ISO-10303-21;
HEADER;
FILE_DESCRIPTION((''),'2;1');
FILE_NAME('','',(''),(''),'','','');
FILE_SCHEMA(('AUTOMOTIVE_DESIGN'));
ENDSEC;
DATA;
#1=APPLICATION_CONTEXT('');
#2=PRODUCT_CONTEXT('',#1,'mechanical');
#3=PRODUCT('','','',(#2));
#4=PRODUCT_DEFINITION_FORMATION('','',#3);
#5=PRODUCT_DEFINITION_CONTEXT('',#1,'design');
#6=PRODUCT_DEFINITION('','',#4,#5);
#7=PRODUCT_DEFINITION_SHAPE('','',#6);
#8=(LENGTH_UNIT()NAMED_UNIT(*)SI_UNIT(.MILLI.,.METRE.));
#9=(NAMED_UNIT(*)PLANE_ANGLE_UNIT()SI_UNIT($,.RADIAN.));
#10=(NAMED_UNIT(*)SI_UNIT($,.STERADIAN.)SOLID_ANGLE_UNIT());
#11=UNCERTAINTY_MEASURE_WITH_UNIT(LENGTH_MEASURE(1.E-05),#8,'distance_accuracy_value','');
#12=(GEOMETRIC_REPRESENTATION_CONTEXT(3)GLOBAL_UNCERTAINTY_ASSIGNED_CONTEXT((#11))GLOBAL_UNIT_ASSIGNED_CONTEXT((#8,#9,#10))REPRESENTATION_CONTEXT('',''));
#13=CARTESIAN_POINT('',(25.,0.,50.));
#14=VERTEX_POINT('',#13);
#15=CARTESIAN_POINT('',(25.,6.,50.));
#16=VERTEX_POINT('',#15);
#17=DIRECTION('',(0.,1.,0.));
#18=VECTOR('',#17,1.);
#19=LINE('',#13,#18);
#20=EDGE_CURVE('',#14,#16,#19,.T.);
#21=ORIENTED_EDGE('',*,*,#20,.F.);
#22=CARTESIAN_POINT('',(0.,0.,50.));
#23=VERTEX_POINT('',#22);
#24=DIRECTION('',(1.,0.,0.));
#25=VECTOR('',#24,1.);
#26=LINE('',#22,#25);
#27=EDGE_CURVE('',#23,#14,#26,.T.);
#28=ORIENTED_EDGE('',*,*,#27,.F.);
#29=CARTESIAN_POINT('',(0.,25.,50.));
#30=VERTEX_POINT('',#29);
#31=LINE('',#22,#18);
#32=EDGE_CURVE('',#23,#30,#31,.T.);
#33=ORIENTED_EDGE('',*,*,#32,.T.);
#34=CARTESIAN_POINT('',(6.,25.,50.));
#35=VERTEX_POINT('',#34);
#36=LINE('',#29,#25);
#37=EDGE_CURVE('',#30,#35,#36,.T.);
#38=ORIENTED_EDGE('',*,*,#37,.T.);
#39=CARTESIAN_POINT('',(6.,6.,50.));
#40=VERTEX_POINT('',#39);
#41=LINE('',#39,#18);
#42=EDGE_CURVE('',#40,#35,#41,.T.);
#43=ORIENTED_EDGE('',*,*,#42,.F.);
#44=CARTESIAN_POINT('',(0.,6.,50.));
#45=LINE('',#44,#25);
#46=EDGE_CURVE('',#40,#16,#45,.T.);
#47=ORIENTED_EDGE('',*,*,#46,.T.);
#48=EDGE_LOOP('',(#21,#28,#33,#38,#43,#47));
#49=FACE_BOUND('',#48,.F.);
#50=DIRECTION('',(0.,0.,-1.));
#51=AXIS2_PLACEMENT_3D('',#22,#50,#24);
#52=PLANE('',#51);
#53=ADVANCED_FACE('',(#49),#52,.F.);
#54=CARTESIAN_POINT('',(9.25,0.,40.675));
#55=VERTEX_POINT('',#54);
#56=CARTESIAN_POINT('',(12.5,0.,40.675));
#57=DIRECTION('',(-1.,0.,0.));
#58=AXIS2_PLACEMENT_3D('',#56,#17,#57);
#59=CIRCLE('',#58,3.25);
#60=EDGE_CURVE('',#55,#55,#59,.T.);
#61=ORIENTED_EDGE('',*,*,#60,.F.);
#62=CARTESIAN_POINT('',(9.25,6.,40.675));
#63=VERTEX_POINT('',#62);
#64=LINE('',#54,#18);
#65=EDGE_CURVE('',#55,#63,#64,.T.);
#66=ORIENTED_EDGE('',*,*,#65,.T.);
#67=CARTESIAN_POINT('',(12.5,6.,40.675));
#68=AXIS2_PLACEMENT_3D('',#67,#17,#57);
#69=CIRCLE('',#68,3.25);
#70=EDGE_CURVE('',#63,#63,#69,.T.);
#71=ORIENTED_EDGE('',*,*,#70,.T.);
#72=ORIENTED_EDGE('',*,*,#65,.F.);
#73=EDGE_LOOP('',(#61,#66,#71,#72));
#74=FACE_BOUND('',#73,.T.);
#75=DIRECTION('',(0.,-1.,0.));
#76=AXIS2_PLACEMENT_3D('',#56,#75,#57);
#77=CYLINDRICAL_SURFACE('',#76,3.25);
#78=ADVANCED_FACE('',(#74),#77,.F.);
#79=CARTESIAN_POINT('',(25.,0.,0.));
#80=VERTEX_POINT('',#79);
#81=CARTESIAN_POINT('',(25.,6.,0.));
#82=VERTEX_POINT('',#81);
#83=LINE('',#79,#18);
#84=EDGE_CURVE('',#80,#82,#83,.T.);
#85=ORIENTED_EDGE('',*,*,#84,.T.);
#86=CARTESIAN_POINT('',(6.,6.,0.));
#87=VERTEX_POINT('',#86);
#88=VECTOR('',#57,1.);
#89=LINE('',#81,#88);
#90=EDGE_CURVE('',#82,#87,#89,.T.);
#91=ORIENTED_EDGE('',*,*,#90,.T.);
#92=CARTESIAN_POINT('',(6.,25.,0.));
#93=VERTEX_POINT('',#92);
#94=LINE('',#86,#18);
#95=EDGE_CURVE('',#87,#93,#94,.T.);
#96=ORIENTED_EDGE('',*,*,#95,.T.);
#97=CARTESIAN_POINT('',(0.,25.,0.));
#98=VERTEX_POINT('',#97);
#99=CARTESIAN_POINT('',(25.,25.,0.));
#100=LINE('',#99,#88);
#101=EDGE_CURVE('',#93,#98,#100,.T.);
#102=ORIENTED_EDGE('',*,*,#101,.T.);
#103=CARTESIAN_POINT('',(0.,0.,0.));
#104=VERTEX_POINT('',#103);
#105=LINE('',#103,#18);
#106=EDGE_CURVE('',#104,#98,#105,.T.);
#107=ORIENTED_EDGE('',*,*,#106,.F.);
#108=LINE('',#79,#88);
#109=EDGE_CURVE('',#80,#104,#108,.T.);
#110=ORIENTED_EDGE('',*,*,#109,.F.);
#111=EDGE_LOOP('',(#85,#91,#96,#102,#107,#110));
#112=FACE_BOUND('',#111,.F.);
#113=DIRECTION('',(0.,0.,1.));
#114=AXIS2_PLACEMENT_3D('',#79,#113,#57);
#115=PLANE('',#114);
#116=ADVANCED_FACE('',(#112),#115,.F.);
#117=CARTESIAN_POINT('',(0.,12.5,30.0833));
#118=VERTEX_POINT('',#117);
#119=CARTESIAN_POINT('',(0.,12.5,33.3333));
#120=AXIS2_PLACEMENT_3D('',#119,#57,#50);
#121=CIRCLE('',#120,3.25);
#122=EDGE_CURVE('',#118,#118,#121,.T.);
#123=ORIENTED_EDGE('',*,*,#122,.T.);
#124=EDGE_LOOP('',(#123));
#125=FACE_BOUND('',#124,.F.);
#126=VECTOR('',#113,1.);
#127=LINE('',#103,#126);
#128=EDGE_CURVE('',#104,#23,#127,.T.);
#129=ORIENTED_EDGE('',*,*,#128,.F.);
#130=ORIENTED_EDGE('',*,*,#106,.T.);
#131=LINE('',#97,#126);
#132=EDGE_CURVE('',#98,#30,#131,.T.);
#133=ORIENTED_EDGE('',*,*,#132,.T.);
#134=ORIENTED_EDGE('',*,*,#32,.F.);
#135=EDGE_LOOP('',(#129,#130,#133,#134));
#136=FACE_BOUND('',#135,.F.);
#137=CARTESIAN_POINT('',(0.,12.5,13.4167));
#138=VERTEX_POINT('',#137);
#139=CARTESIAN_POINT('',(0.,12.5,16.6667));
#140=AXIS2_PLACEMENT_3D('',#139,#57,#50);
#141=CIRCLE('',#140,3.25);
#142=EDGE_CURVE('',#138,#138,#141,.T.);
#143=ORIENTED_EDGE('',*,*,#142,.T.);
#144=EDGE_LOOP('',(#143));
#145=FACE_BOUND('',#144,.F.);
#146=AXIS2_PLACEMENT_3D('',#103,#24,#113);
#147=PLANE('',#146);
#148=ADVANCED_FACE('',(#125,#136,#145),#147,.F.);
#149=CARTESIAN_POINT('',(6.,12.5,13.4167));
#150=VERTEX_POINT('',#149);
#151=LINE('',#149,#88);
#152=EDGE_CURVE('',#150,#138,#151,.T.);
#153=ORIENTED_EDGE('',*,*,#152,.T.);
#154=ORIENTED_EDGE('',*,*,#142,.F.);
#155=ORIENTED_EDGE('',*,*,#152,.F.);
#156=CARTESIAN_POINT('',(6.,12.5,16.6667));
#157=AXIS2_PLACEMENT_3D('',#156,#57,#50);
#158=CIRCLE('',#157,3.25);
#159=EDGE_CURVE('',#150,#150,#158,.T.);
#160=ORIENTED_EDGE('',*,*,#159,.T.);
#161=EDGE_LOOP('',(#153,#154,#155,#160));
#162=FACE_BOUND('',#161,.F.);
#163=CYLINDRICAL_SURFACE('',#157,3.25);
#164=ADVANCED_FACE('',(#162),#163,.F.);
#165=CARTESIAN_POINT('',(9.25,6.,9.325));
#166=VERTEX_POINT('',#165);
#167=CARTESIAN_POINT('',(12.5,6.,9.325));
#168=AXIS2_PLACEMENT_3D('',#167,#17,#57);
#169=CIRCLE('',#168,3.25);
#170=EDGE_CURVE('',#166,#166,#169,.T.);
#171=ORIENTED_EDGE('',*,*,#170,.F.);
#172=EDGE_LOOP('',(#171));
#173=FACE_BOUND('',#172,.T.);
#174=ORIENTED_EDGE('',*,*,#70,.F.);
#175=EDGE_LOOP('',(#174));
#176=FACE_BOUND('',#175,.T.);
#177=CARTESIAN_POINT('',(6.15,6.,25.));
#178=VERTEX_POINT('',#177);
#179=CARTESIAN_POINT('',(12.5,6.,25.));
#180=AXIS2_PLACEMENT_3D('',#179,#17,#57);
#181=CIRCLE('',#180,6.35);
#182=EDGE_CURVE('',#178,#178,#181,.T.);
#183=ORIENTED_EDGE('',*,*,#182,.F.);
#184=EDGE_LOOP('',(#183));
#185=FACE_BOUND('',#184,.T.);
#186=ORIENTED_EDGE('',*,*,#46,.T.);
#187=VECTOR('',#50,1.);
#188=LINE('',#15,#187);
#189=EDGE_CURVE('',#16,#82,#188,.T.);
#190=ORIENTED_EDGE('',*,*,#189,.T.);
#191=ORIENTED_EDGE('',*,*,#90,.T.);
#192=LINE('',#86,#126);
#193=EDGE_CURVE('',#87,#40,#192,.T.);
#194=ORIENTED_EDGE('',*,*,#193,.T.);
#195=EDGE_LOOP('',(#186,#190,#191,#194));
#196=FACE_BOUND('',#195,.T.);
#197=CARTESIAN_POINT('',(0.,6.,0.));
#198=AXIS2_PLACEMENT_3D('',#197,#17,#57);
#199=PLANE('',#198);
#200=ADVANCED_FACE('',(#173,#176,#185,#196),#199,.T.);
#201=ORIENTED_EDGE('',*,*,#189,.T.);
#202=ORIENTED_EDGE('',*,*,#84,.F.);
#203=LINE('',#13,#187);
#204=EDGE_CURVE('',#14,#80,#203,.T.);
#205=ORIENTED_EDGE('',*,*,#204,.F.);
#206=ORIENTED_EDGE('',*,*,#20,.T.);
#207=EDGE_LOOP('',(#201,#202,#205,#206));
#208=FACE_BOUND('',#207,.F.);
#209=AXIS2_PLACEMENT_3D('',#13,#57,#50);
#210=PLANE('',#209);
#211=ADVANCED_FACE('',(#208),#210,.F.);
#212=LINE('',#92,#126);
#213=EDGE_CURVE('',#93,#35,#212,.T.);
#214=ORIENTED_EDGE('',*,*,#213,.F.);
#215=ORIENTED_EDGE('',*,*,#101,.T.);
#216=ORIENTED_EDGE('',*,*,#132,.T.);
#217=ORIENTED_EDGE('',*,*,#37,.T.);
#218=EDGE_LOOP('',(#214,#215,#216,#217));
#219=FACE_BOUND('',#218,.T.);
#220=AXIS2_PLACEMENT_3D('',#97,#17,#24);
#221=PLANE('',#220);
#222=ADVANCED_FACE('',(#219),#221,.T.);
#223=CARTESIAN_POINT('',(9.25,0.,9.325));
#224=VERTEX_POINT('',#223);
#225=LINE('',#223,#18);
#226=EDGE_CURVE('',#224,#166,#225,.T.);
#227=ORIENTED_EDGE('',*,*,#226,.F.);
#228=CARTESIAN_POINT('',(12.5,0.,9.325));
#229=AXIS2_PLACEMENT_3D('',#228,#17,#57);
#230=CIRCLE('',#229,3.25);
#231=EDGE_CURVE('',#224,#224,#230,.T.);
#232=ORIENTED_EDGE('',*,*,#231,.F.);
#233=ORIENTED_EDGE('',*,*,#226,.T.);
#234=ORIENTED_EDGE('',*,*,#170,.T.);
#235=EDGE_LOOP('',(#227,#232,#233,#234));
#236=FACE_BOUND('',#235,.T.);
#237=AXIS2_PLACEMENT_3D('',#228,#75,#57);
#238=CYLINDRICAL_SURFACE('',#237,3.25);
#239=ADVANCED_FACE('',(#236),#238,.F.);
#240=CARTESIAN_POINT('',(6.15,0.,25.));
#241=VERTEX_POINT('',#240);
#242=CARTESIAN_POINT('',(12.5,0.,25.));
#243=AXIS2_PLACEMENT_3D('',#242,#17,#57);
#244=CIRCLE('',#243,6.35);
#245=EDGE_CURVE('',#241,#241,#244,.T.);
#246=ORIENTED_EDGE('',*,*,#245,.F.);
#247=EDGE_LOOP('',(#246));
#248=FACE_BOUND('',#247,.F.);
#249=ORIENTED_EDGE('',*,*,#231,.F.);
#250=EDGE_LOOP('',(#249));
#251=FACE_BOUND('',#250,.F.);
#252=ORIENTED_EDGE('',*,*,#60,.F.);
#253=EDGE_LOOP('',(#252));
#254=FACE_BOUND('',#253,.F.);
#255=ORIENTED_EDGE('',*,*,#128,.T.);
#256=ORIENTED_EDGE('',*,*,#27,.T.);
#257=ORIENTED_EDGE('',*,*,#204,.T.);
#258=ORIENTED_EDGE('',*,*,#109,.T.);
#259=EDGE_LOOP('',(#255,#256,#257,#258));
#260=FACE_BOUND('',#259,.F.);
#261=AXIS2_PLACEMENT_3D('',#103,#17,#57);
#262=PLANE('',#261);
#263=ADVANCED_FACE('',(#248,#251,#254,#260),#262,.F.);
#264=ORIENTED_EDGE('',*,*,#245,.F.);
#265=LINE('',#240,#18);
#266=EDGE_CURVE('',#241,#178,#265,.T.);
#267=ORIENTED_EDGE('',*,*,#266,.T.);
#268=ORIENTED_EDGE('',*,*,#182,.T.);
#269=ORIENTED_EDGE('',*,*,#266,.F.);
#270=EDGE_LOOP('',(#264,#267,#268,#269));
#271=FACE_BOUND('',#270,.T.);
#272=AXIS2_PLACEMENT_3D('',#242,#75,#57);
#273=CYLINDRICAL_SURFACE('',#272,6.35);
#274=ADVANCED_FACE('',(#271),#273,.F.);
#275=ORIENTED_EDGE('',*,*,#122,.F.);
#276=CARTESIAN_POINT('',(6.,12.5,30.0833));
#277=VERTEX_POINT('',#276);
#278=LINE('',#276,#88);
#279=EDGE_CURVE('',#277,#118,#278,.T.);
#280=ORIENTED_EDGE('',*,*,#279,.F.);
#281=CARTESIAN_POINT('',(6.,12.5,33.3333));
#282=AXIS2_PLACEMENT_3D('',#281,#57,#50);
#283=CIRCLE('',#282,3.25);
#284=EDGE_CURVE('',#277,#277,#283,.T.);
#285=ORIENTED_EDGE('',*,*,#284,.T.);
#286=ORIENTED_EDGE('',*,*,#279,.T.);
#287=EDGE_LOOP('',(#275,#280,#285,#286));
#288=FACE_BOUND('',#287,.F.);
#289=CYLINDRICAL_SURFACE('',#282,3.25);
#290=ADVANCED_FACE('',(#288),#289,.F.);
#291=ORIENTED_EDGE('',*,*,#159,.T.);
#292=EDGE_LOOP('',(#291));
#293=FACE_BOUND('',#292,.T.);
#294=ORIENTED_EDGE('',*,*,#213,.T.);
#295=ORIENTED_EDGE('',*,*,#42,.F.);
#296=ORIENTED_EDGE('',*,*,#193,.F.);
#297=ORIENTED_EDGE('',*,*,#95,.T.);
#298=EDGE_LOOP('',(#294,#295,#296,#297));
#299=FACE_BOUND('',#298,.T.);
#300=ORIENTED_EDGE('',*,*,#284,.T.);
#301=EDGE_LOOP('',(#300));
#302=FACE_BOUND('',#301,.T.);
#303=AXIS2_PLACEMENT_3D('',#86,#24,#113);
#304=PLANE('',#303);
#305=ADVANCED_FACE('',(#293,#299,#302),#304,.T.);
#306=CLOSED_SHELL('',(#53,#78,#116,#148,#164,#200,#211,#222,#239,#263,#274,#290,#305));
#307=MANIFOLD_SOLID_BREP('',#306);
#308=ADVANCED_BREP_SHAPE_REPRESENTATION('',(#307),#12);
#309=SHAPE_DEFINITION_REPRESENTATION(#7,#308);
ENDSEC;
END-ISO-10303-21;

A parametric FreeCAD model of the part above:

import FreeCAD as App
import Part
import Sketcher

V = App.Vector

doc = App.newDocument("Part")
params = doc.addObject("Spreadsheet::Sheet", "Params")
for row, (alias, value) in enumerate([
    ("sketch1_diameter", "6.5 mm"),
    ("sketch1_diameter2", "12.7 mm"),
    ("sketch1_width", "25 mm"),
    ("sketch1_height", "50 mm"),
    ("pad1_length", "6 mm"),
    ("sketch2_width", "6 mm"),
    ("sketch2_height", "50 mm"),
    ("pad2_length", "19 mm"),
    ("sketch3_diameter", "6.5 mm"),
    ("hole_diameter", "6.5 mm"),
    ("hole_depth", "111 mm"),
], start=1):
    params.set(f"A{row}", alias)
    params.set(f"B{row}", "=" + value)
    params.setAlias(f"B{row}", alias)

body = doc.addObject("PartDesign::Body", "Body")

sketch1 = body.newObject("Sketcher::SketchObject", "Sketch")
sketch1.AttachmentSupport = (doc.getObject("XZ_Plane"), [""])
sketch1.MapMode = "FlatFace"
sketch1.addGeometry(Part.LineSegment(V(25, 0, 0), V(0, 0, 0)), False)
sketch1.addGeometry(Part.LineSegment(V(0, 0, 0), V(0, 50, 0)), False)
sketch1.addGeometry(Part.LineSegment(V(0, 50, 0), V(25, 50, 0)), False)
sketch1.addGeometry(Part.LineSegment(V(25, 50, 0), V(25, 0, 0)), False)
sketch1.addGeometry(Part.Circle(V(12.5, 9.3, 0), V(0, 0, 1), 3.2), False)
sketch1.addGeometry(Part.Circle(V(12.5, 25, 0), V(0, 0, 1), 6.3), False)
sketch1.addGeometry(Part.Circle(V(12.5, 40.7, 0), V(0, 0, 1), 3.2), False)
sketch1.addConstraint(Sketcher.Constraint("Coincident", 0, 2, 1, 1))
sketch1.addConstraint(Sketcher.Constraint("Coincident", 1, 2, 2, 1))
sketch1.addConstraint(Sketcher.Constraint("Coincident", 2, 2, 3, 1))
sketch1.addConstraint(Sketcher.Constraint("Coincident", 3, 2, 0, 1))
sketch1.addConstraint(Sketcher.Constraint("Horizontal", 0))
sketch1.addConstraint(Sketcher.Constraint("Vertical", 1))
sketch1.addConstraint(Sketcher.Constraint("Horizontal", 2))
sketch1.addConstraint(Sketcher.Constraint("Vertical", 3))
sketch1.addConstraint(Sketcher.Constraint("Coincident", 0, 2, -1, 1))
sketch1.addConstraint(Sketcher.Constraint("Equal", 4, 6))
sketch1.addConstraint(Sketcher.Constraint("Vertical", 4, 3, 5, 3))
sketch1.addConstraint(Sketcher.Constraint("Vertical", 5, 3, 6, 3))
sketch1.addConstraint(Sketcher.Constraint("Diameter", 4, 6.5))
sketch1.addConstraint(Sketcher.Constraint("Diameter", 5, 12.7))
sketch1.addConstraint(Sketcher.Constraint("DistanceX", 0, 2, 0, 1, 25.0))
sketch1.addConstraint(Sketcher.Constraint("DistanceY", 1, 1, 1, 2, 50.0))
sketch1.addConstraint(Sketcher.Constraint("DistanceY", -1, 1, 5, 3, 25.0))
sketch1.addConstraint(Sketcher.Constraint("DistanceX", -1, 1, 4, 3, 12.5))
sketch1.addConstraint(Sketcher.Constraint("DistanceY", 4, 3, 6, 3, 31.35))
sketch1.addConstraint(Sketcher.Constraint("DistanceY", -1, 1, 4, 3, 9.325))
sketch1.setExpression("Constraints[12]", "Params.sketch1_diameter")
sketch1.setExpression("Constraints[13]", "Params.sketch1_diameter2")
sketch1.setExpression("Constraints[14]", "Params.sketch1_width")
sketch1.setExpression("Constraints[15]", "Params.sketch1_height")
pad1 = body.newObject("PartDesign::Pad", "Pad")
pad1.Profile = sketch1
pad1.setExpression("Length", "Params.pad1_length")
pad1.Reversed = True

sketch2 = body.newObject("Sketcher::SketchObject", "Sketch001")
sketch2.AttachmentSupport = (doc.getObject("XZ_Plane"), [""])
sketch2.MapMode = "FlatFace"
sketch2.AttachmentOffset = App.Placement(V(0, 0, -6), App.Rotation())
sketch2.addGeometry(Part.LineSegment(V(6, 50, 0), V(6, 0, 0)), False)
sketch2.addGeometry(Part.LineSegment(V(6, 0, 0), V(0, 0, 0)), False)
sketch2.addGeometry(Part.LineSegment(V(0, 0, 0), V(0, 50, 0)), False)
sketch2.addGeometry(Part.LineSegment(V(0, 50, 0), V(6, 50, 0)), False)
sketch2.addConstraint(Sketcher.Constraint("Coincident", 0, 2, 1, 1))
sketch2.addConstraint(Sketcher.Constraint("Coincident", 1, 2, 2, 1))
sketch2.addConstraint(Sketcher.Constraint("Coincident", 2, 2, 3, 1))
sketch2.addConstraint(Sketcher.Constraint("Coincident", 3, 2, 0, 1))
sketch2.addConstraint(Sketcher.Constraint("Vertical", 0))
sketch2.addConstraint(Sketcher.Constraint("Horizontal", 1))
sketch2.addConstraint(Sketcher.Constraint("Vertical", 2))
sketch2.addConstraint(Sketcher.Constraint("Horizontal", 3))
sketch2.addConstraint(Sketcher.Constraint("Coincident", 1, 2, -1, 1))
sketch2.addConstraint(Sketcher.Constraint("DistanceX", 1, 2, 1, 1, 6.0))
sketch2.addConstraint(Sketcher.Constraint("DistanceY", 0, 2, 0, 1, 50.0))
sketch2.setExpression("Constraints[9]", "Params.sketch2_width")
sketch2.setExpression("Constraints[10]", "Params.sketch2_height")
pad2 = body.newObject("PartDesign::Pad", "Pad001")
pad2.Profile = sketch2
pad2.setExpression("Length", "Params.pad2_length")
pad2.Reversed = True

sketch3 = body.newObject("Sketcher::SketchObject", "Sketch002")
sketch3.AttachmentSupport = (doc.getObject("YZ_Plane"), [""])
sketch3.MapMode = "FlatFace"
sketch3.AttachmentOffset = App.Placement(V(0, 0, 6), App.Rotation())
sketch3.addGeometry(Part.Circle(V(12.5, 33.3, 0), V(0, 0, 1), 3.2), False)
sketch3.addGeometry(Part.Circle(V(12.5, 16.7, 0), V(0, 0, 1), 3.2), False)
sketch3.addConstraint(Sketcher.Constraint("Equal", 0, 1))
sketch3.addConstraint(Sketcher.Constraint("Vertical", 0, 3, 1, 3))
sketch3.addConstraint(Sketcher.Constraint("Diameter", 0, 6.5))
sketch3.addConstraint(Sketcher.Constraint("DistanceX", -1, 1, 0, 3, 12.5))
sketch3.addConstraint(Sketcher.Constraint("DistanceY", -1, 1, 0, 3, 33.3333))
sketch3.addConstraint(Sketcher.Constraint("DistanceY", -1, 1, 1, 3, 16.6667))
sketch3.setExpression("Constraints[2]", "Params.sketch3_diameter")
doc.recompute()
hole = body.newObject("PartDesign::Hole", "Hole")
hole.Profile = sketch3
hole.ThreadType = "None"
hole.setExpression("Diameter", "Params.hole_diameter")
hole.DepthType = "Dimension"
hole.setExpression("Depth", "Params.hole_depth")
hole.DrillPoint = "Flat"

doc.recompute()
